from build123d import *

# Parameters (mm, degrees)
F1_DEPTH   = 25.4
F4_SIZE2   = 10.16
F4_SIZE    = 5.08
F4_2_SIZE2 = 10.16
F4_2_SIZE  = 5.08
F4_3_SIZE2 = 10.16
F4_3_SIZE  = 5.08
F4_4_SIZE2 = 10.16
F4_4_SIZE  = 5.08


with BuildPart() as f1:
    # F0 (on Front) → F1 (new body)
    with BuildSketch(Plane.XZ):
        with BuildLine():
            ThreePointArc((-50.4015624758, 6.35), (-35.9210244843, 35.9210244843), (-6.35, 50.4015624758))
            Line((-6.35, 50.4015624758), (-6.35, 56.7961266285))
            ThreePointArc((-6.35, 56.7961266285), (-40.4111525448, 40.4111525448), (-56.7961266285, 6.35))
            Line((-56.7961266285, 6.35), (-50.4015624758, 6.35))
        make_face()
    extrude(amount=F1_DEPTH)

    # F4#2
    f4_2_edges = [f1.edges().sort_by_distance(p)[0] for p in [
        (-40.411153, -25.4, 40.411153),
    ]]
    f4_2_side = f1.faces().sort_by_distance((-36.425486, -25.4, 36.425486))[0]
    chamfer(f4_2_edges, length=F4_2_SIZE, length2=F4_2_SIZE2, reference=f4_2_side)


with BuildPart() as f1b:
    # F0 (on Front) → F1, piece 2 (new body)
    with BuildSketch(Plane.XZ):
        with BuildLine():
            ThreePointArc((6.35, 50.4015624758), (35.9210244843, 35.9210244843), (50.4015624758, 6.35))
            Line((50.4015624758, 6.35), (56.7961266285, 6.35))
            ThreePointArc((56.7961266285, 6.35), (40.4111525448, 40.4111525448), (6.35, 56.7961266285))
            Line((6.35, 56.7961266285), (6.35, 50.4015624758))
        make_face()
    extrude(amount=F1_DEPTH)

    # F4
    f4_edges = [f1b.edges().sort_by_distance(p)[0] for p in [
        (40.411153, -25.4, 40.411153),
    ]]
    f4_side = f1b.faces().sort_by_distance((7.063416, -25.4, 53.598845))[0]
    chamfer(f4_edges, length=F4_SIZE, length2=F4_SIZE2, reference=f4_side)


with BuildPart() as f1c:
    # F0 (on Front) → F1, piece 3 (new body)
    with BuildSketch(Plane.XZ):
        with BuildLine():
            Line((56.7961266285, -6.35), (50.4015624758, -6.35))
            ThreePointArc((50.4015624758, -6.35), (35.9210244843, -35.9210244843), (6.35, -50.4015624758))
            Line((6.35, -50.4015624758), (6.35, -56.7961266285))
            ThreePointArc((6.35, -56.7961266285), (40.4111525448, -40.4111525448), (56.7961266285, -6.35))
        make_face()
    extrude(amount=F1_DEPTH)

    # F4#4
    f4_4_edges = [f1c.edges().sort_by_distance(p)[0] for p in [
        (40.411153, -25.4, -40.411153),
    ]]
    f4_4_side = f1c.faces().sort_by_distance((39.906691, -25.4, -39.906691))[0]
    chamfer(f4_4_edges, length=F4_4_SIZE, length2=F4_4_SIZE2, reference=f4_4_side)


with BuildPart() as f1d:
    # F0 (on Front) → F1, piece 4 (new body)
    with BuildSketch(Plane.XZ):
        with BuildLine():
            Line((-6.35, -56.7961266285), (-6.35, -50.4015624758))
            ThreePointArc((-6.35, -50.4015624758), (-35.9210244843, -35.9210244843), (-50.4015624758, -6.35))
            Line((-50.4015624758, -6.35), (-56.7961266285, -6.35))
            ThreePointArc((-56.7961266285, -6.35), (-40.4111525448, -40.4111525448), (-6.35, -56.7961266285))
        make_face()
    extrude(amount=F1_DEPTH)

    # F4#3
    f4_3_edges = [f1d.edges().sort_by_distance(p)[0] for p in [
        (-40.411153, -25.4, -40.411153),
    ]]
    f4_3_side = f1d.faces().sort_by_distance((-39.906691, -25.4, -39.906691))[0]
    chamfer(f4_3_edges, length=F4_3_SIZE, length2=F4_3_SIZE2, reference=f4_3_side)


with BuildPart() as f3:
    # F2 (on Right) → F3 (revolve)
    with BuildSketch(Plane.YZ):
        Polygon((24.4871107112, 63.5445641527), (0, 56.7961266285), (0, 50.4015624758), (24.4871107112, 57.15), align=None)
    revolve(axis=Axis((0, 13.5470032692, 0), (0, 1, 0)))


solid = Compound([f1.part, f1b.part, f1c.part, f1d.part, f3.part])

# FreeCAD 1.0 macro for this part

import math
import FreeCAD as App
import Part
import Sketcher

V = App.Vector
Q = App.Units.Quantity


def edges_at(feature, points):
    """Names of the edges that pass closest to the given points."""
    edges = feature.Shape.Edges
    near = lambda p: min(range(len(edges)), key=lambda i: edges[i].distToShape(Part.Vertex(*p))[0])
    return sorted({f"Edge{near(p) + 1}" for p in points})

doc = App.newDocument("Part")
body = doc.addObject("PartDesign::Body", "Body")

# Sketch on XZ plane
sketch1 = body.newObject("Sketcher::SketchObject", "Sketch")
sketch1.AttachmentSupport = (doc.getObject("XZ_Plane"), [""])
sketch1.MapMode = "FlatFace"
sketch1.addGeometry([
    Part.ArcOfCircle(Part.Circle(V(0, 0, 0), V(0, 0, 1), 51), math.radians(97), math.radians(173)),
    Part.LineSegment(V(-6, 50, 0), V(-6, 57, 0)),
    Part.ArcOfCircle(Part.Circle(V(0, 0, 0), V(0, 0, 1), 57), math.radians(96), math.radians(174)),
    Part.LineSegment(V(-57, 6, 0), V(-50, 6, 0)),
], False)
sketch1.addConstraint([
    Sketcher.Constraint("Coincident", 0, 1, 1, 1),
    Sketcher.Constraint("Coincident", 1, 2, 2, 1),
    Sketcher.Constraint("Coincident", 2, 2, 3, 1),
    Sketcher.Constraint("Coincident", 3, 2, 0, 2),
    Sketcher.Constraint("Vertical", 1),
    Sketcher.Constraint("Horizontal", 3),
    Sketcher.Constraint("Coincident", 0, 3, -1, 1),
    Sketcher.Constraint("Coincident", 2, 3, -1, 1),
    Sketcher.Constraint("Equal", 3, 1),
    Sketcher.Constraint("Radius", 0, Q("2 in")),
    Sketcher.Constraint("Radius", 2, Q("2.25 in")),
    Sketcher.Constraint("DistanceX", 0, 1, -1, 1, Q("0.25 in")),
])
pad1 = body.newObject("PartDesign::Pad", "Pad")
pad1.Profile = sketch1
pad1.Length = Q("1 in")
doc.recompute()

chamfer = body.newObject("PartDesign::Chamfer", "Chamfer")
chamfer.Base = (pad1, edges_at(pad1, [(-40.411, -25.4, 40.411)]))
chamfer.ChamferType = "Two distances"
chamfer.Size = Q("0.2 in")
chamfer.Size2 = Q("0.4 in")
chamfer.FlipDirection = True
body2 = doc.addObject("PartDesign::Body", "Body001")

# Sketch on XZ plane
sketch2 = body2.newObject("Sketcher::SketchObject", "Sketch001")
sketch2.AttachmentSupport = (doc.getObject("XZ_Plane001"), [""])
sketch2.MapMode = "FlatFace"
sketch2.addGeometry([
    Part.ArcOfCircle(Part.Circle(V(0, 0, 0), V(0, 0, 1), 51), math.radians(7), math.radians(83)),
    Part.LineSegment(V(50, 6, 0), V(57, 6, 0)),
    Part.ArcOfCircle(Part.Circle(V(0, 0, 0), V(0, 0, 1), 57), math.radians(6), math.radians(84)),
    Part.LineSegment(V(6, 57, 0), V(6, 50, 0)),
], False)
sketch2.addConstraint([
    Sketcher.Constraint("Coincident", 0, 1, 1, 1),
    Sketcher.Constraint("Coincident", 1, 2, 2, 1),
    Sketcher.Constraint("Coincident", 2, 2, 3, 1),
    Sketcher.Constraint("Coincident", 3, 2, 0, 2),
    Sketcher.Constraint("Horizontal", 1),
    Sketcher.Constraint("Vertical", 3),
    Sketcher.Constraint("Coincident", 0, 3, -1, 1),
    Sketcher.Constraint("Coincident", 2, 3, -1, 1),
    Sketcher.Constraint("Equal", 1, 3),
    Sketcher.Constraint("Radius", 0, Q("2 in")),
    Sketcher.Constraint("Radius", 2, Q("2.25 in")),
    Sketcher.Constraint("DistanceY", -1, 1, 0, 1, Q("0.25 in")),
])
pad2 = body2.newObject("PartDesign::Pad", "Pad001")
pad2.Profile = sketch2
pad2.Length = Q("1 in")
doc.recompute()

chamfer2 = body2.newObject("PartDesign::Chamfer", "Chamfer001")
chamfer2.Base = (pad2, edges_at(pad2, [(40.411, -25.4, 40.411)]))
chamfer2.ChamferType = "Two distances"
chamfer2.Size = Q("0.2 in")
chamfer2.Size2 = Q("0.4 in")
chamfer2.FlipDirection = True
body3 = doc.addObject("PartDesign::Body", "Body002")

# Sketch on XZ plane
sketch3 = body3.newObject("Sketcher::SketchObject", "Sketch002")
sketch3.AttachmentSupport = (doc.getObject("XZ_Plane002"), [""])
sketch3.MapMode = "FlatFace"
sketch3.addGeometry([
    Part.LineSegment(V(57, -6, 0), V(50, -6, 0)),
    Part.ArcOfCircle(Part.Circle(V(0, 0, 0), V(0, 0, 1), 51), math.radians(-83), math.radians(-7)),
    Part.LineSegment(V(6, -50, 0), V(6, -57, 0)),
    Part.ArcOfCircle(Part.Circle(V(0, 0, 0), V(0, 0, 1), 57), math.radians(-84), math.radians(-6)),
], False)
sketch3.addConstraint([
    Sketcher.Constraint("Coincident", 0, 2, 1, 2),
    Sketcher.Constraint("Coincident", 1, 1, 2, 1),
    Sketcher.Constraint("Coincident", 2, 2, 3, 1),
    Sketcher.Constraint("Coincident", 3, 2, 0, 1),
    Sketcher.Constraint("Horizontal", 0),
    Sketcher.Constraint("Vertical", 2),
    Sketcher.Constraint("Coincident", 1, 3, -1, 1),
    Sketcher.Constraint("Coincident", 3, 3, -1, 1),
    Sketcher.Constraint("Equal", 0, 2),
    Sketcher.Constraint("Radius", 1, Q("2 in")),
    Sketcher.Constraint("Radius", 3, Q("2.25 in")),
    Sketcher.Constraint("DistanceY", 0, 2, -1, 1, Q("0.25 in")),
])
pad3 = body3.newObject("PartDesign::Pad", "Pad002")
pad3.Profile = sketch3
pad3.Length = Q("1 in")
doc.recompute()

chamfer3 = body3.newObject("PartDesign::Chamfer", "Chamfer002")
chamfer3.Base = (pad3, edges_at(pad3, [(40.411, -25.4, -40.411)]))
chamfer3.ChamferType = "Two distances"
chamfer3.Size = Q("0.2 in")
chamfer3.Size2 = Q("0.4 in")
chamfer3.FlipDirection = True
body4 = doc.addObject("PartDesign::Body", "Body003")

# Sketch on XZ plane
sketch4 = body4.newObject("Sketcher::SketchObject", "Sketch003")
sketch4.AttachmentSupport = (doc.getObject("XZ_Plane003"), [""])
sketch4.MapMode = "FlatFace"
sketch4.addGeometry([
    Part.LineSegment(V(-6, -57, 0), V(-6, -50, 0)),
    Part.ArcOfCircle(Part.Circle(V(0, 0, 0), V(0, 0, 1), 51), math.radians(-173), math.radians(-97)),
    Part.LineSegment(V(-50, -6, 0), V(-57, -6, 0)),
    Part.ArcOfCircle(Part.Circle(V(0, 0, 0), V(0, 0, 1), 57), math.radians(-174), math.radians(-96)),
], False)
sketch4.addConstraint([
    Sketcher.Constraint("Coincident", 0, 2, 1, 2),
    Sketcher.Constraint("Coincident", 1, 1, 2, 1),
    Sketcher.Constraint("Coincident", 2, 2, 3, 1),
    Sketcher.Constraint("Coincident", 3, 2, 0, 1),
    Sketcher.Constraint("Vertical", 0),
    Sketcher.Constraint("Horizontal", 2),
    Sketcher.Constraint("Coincident", 1, 3, -1, 1),
    Sketcher.Constraint("Coincident", 3, 3, -1, 1),
    Sketcher.Constraint("Equal", 2, 0),
    Sketcher.Constraint("Radius", 1, Q("2 in")),
    Sketcher.Constraint("Radius", 3, Q("2.25 in")),
    Sketcher.Constraint("DistanceX", 0, 2, -1, 1, Q("0.25 in")),
])
pad4 = body4.newObject("PartDesign::Pad", "Pad003")
pad4.Profile = sketch4
pad4.Length = Q("1 in")
doc.recompute()

chamfer4 = body4.newObject("PartDesign::Chamfer", "Chamfer003")
chamfer4.Base = (pad4, edges_at(pad4, [(-40.411, -25.4, -40.411)]))
chamfer4.ChamferType = "Two distances"
chamfer4.Size = Q("0.2 in")
chamfer4.Size2 = Q("0.4 in")
chamfer4.FlipDirection = True
body5 = doc.addObject("PartDesign::Body", "Body004")

# Sketch on YZ plane
sketch5 = body5.newObject("Sketcher::SketchObject", "Sketch004")
sketch5.AttachmentSupport = (doc.getObject("YZ_Plane004"), [""])
sketch5.MapMode = "FlatFace"
sketch5.addGeometry([
    Part.LineSegment(V(24, 64, 0), V(0, 57, 0)),
    Part.LineSegment(V(0, 57, 0), V(0, 50, 0)),
    Part.LineSegment(V(0, 50, 0), V(24, 57, 0)),
    Part.LineSegment(V(24, 57, 0), V(24, 64, 0)),
], False)
sketch5.addConstraint([
    Sketcher.Constraint("Coincident", 0, 2, 1, 1),
    Sketcher.Constraint("Coincident", 1, 2, 2, 1),
    Sketcher.Constraint("Coincident", 2, 2, 3, 1),
    Sketcher.Constraint("Coincident", 3, 2, 0, 1),
    Sketcher.Constraint("Vertical", 1),
    Sketcher.Constraint("Vertical", 3),
    Sketcher.Constraint("PointOnObject", 0, 2, -2),
    Sketcher.Constraint("Parallel", 0, 2),
    Sketcher.Constraint("Distance", 0, Q("1 in")),
    Sketcher.Constraint("DistanceY", -1, 1, 2, 2, Q("2.25 in")),
    Sketcher.Constraint("DistanceY", 1, 2, 3, 2, 13.143002),
    Sketcher.Constraint("DistanceY", 1, 2, 1, 1, 6.394564),
])
revolution = body5.newObject("PartDesign::Revolution", "Revolution")
revolution.Profile = sketch5
revolution.ReferenceAxis = (sketch5, ["H_Axis"])
revolution.Angle = 360

doc.recompute()
